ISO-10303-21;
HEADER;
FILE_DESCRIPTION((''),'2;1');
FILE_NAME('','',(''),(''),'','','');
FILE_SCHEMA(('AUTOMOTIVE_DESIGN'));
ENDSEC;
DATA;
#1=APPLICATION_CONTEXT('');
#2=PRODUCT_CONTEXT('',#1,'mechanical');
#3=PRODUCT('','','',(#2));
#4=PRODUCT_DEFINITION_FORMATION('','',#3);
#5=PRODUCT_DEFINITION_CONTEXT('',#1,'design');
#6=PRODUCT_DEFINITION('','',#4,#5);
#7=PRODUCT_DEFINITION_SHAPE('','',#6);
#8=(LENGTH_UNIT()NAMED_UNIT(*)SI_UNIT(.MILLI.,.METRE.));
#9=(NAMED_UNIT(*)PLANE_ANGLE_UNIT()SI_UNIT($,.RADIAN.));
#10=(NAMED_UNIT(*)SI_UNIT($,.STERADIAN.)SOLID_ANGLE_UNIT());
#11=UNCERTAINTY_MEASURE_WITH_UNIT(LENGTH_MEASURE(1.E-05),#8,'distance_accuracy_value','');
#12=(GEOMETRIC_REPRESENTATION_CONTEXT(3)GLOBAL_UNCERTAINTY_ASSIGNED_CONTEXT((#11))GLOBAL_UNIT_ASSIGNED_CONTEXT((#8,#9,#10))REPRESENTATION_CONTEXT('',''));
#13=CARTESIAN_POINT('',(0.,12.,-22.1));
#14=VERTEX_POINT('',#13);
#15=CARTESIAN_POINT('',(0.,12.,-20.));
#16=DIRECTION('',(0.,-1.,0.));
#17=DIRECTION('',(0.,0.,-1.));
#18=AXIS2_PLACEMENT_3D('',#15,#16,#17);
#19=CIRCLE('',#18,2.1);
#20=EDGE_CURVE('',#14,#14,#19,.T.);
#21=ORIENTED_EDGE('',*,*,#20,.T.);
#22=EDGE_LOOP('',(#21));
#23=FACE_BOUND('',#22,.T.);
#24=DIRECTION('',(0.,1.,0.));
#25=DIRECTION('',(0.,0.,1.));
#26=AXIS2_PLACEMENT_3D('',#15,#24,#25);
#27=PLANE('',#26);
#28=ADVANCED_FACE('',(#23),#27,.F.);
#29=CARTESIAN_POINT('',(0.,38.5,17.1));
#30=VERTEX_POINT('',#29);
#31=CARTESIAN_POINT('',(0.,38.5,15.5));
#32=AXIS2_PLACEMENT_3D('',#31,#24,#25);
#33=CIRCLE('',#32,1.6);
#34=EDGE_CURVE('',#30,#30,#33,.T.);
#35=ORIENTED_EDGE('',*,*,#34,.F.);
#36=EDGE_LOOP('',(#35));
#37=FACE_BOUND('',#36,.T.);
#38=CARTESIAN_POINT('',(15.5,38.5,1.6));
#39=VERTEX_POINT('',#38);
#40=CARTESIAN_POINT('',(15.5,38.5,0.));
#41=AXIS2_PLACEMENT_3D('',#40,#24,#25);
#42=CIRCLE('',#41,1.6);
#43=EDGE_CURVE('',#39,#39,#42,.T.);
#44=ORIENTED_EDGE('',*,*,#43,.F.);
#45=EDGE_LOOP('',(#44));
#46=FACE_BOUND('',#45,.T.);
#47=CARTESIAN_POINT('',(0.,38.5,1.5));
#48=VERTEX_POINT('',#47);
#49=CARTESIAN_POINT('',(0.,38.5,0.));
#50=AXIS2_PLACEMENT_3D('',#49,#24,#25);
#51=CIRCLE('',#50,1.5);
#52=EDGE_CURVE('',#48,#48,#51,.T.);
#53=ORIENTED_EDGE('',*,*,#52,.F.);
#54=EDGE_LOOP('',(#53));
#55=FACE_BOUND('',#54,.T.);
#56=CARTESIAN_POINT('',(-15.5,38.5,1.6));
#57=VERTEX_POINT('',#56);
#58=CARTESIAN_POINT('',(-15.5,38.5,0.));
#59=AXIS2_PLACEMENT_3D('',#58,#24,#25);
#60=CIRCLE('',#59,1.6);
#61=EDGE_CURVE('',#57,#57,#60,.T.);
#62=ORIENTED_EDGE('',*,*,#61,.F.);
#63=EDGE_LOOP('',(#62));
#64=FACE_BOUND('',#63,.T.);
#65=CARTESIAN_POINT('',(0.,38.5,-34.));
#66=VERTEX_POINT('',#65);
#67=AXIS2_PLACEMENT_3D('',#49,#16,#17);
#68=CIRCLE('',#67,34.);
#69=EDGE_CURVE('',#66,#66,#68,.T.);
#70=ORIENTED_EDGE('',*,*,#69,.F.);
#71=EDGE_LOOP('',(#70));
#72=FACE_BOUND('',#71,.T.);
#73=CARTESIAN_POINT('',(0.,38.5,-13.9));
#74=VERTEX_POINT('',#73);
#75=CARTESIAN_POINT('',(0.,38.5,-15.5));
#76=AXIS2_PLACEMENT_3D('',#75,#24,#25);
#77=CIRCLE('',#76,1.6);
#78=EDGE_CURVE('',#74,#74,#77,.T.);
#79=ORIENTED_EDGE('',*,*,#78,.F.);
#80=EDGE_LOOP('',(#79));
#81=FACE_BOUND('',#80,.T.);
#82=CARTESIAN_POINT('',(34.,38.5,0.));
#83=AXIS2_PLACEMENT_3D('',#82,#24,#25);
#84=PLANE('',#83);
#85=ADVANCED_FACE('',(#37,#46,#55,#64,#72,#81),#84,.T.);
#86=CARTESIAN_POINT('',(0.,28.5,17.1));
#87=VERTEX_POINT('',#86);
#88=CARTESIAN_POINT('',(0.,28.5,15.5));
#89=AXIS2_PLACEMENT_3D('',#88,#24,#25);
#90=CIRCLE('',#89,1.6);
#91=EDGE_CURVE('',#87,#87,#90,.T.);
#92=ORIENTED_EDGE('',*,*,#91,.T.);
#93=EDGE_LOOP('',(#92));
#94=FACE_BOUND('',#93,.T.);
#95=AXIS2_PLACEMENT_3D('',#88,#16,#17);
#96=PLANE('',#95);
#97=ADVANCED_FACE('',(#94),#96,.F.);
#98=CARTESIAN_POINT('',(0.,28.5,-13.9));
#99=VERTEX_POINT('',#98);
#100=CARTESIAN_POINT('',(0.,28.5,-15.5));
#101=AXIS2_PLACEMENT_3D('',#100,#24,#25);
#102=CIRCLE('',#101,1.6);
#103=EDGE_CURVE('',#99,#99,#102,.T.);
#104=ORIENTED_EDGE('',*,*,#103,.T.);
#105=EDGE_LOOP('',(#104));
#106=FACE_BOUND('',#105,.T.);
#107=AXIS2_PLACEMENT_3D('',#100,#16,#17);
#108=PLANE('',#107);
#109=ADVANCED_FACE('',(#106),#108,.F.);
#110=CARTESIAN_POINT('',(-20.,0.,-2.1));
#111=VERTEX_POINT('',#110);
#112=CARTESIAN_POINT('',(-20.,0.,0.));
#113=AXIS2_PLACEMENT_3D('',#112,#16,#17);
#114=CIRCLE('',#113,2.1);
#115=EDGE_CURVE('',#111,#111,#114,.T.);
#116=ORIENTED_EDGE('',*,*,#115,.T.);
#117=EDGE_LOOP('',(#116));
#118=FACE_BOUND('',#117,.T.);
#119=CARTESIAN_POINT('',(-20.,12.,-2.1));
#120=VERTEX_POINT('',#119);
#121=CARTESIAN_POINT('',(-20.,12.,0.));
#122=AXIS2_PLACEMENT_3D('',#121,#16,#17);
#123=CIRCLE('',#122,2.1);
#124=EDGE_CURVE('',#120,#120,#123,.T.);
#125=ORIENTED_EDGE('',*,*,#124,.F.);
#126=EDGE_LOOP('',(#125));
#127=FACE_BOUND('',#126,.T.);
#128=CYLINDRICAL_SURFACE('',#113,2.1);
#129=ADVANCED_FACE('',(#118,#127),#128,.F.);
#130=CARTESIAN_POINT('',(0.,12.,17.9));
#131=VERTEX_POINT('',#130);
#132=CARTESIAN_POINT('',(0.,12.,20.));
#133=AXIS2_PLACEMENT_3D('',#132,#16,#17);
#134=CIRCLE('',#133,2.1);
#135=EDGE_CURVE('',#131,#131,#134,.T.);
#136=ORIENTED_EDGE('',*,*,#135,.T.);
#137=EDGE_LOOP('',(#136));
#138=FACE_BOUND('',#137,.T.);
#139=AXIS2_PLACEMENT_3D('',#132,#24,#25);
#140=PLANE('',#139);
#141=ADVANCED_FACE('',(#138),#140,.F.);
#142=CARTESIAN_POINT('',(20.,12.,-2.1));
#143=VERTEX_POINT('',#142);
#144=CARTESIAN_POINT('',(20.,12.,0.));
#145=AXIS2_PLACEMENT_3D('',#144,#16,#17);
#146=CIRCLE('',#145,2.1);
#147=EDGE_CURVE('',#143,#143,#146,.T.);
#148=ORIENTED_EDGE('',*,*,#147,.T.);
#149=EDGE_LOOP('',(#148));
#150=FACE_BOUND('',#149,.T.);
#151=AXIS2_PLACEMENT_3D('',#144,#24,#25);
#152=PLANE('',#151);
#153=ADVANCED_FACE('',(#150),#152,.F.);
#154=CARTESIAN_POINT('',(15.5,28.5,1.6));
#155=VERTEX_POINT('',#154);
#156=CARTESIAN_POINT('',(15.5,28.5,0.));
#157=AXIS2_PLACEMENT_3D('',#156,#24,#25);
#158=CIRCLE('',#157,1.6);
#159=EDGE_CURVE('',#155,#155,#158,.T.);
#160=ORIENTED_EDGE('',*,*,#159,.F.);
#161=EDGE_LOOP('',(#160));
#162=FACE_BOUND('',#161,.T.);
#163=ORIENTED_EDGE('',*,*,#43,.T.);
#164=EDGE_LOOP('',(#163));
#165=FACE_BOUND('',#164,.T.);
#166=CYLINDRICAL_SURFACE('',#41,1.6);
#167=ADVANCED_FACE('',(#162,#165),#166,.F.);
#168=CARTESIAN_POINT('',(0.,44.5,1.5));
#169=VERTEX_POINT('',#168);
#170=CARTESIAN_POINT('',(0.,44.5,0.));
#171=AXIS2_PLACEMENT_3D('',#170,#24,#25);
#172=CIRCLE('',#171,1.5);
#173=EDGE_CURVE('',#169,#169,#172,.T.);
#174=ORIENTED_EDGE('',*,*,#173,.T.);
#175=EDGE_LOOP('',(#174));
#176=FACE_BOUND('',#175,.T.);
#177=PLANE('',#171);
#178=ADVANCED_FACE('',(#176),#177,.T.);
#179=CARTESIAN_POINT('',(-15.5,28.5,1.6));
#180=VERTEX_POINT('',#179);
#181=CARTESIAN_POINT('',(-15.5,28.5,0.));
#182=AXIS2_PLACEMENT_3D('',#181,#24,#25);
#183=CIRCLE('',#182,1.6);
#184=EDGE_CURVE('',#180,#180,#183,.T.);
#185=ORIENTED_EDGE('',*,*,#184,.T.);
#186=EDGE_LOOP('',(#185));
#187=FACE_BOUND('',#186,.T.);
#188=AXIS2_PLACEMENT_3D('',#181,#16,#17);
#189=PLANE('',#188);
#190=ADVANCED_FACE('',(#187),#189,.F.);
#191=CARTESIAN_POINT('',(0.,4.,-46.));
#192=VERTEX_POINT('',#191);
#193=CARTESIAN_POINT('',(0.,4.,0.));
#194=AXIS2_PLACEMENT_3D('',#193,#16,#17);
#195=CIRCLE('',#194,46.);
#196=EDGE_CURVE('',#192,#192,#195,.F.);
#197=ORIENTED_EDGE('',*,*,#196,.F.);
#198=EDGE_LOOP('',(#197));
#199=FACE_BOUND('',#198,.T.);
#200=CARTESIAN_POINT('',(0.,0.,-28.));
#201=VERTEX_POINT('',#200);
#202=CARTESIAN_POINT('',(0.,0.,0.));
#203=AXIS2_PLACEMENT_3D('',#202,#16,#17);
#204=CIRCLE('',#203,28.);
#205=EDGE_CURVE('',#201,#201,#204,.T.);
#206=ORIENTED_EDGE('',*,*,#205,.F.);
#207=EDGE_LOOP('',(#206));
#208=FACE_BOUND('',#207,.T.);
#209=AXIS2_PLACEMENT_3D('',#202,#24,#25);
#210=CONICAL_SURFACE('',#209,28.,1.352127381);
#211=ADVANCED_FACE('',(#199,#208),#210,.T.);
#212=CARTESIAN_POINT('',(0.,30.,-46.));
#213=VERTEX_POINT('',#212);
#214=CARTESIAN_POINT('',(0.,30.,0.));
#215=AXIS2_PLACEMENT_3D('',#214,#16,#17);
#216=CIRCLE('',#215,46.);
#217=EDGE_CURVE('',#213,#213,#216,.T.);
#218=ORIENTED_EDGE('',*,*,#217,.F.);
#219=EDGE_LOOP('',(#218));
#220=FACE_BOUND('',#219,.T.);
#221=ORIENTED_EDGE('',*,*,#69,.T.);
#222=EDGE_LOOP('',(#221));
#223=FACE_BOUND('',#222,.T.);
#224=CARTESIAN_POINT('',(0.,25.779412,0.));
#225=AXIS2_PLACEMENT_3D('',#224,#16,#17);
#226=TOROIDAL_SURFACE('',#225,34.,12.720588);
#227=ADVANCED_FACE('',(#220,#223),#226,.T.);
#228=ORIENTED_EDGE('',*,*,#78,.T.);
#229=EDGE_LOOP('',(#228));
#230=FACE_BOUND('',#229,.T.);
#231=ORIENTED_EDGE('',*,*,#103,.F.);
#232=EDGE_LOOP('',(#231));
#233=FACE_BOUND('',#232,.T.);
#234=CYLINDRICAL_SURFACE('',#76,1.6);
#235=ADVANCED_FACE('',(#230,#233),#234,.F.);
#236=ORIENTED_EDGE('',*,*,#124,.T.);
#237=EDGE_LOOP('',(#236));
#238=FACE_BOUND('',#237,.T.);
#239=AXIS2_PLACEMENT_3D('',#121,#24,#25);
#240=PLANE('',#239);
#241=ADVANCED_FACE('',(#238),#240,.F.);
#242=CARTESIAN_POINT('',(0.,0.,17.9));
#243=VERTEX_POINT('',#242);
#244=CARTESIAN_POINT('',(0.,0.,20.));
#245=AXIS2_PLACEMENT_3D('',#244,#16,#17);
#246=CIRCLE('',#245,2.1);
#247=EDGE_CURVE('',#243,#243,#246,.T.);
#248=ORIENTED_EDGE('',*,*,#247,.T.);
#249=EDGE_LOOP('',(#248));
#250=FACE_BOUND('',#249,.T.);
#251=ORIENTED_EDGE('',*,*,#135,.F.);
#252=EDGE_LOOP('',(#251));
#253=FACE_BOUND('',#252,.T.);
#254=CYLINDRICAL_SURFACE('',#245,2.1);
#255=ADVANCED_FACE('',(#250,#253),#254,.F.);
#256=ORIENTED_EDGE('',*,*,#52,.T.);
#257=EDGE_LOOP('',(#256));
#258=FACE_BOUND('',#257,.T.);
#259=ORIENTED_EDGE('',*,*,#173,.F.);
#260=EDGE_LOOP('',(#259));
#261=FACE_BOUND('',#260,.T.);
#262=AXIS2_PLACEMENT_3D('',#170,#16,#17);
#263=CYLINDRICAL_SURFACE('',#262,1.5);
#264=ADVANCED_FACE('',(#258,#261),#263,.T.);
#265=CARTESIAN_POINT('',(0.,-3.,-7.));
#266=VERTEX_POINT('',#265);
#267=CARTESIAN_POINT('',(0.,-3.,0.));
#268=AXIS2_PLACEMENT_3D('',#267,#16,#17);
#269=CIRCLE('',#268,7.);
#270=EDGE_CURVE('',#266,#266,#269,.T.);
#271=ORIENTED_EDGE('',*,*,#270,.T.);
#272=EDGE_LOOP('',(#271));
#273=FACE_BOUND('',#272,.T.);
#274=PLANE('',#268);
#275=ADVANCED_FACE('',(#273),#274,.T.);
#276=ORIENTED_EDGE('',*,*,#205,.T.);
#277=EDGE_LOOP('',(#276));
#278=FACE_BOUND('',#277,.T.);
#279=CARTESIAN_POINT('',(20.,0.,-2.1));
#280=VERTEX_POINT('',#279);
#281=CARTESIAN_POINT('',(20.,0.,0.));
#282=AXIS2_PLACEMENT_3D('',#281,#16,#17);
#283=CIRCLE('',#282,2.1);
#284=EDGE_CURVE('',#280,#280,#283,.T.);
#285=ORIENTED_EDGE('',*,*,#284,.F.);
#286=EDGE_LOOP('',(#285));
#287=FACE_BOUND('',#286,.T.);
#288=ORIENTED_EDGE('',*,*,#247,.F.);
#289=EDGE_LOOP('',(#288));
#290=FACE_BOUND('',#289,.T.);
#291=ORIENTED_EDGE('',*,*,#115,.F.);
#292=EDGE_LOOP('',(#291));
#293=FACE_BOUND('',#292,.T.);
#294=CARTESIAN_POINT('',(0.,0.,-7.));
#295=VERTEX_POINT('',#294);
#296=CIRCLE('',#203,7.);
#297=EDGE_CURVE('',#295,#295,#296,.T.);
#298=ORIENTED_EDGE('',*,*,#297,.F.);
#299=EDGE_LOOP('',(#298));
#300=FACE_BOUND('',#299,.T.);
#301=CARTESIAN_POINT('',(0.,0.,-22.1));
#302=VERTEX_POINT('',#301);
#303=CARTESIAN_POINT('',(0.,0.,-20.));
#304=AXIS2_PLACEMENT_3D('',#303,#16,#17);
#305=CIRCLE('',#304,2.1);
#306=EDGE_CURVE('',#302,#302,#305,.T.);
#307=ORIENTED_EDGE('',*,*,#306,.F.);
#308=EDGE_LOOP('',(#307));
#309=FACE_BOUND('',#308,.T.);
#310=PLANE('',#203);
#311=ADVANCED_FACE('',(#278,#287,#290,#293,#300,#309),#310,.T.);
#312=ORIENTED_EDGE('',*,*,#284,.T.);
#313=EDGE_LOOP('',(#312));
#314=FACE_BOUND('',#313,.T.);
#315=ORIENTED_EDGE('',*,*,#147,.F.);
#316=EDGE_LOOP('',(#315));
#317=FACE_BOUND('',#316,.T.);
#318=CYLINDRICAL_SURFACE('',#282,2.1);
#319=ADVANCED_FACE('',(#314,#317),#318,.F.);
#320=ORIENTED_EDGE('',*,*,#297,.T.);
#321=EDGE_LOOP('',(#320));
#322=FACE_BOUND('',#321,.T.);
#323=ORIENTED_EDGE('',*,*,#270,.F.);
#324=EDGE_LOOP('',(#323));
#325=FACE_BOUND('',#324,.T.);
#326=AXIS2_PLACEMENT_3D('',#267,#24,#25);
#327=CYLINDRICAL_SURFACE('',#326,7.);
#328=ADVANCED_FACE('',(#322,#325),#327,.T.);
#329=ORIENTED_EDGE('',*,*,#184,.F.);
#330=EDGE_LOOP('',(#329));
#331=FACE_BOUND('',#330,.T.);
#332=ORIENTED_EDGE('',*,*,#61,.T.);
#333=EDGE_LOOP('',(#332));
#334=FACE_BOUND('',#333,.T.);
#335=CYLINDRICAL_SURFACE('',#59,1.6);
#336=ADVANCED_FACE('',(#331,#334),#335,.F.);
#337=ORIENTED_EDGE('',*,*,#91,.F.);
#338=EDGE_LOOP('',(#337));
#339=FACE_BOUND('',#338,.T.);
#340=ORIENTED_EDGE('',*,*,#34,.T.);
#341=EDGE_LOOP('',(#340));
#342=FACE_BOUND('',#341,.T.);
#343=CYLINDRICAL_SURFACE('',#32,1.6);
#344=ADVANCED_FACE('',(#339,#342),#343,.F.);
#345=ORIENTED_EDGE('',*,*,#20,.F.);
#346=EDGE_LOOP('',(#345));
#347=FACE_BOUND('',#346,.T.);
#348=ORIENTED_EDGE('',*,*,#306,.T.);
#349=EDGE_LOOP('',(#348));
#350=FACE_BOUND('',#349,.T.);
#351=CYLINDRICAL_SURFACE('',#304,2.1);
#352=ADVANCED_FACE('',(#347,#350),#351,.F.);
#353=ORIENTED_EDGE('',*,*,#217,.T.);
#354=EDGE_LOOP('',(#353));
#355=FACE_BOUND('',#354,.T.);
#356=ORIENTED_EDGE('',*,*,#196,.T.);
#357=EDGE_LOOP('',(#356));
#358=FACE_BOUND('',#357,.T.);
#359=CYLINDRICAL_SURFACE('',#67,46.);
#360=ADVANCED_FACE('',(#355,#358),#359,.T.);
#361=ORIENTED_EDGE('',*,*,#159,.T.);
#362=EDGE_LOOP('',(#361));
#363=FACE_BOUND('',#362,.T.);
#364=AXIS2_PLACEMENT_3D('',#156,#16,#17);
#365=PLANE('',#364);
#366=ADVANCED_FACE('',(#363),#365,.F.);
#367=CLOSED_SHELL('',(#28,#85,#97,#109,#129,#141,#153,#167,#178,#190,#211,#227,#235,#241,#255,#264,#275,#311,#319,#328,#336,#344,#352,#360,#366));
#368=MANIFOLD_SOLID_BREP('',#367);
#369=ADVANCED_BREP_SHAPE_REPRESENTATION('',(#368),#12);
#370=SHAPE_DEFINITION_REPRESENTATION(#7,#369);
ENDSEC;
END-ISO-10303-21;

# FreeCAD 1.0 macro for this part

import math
import FreeCAD as App
import Part
import Sketcher
Q = App.Units.Quantity


def edges_at(feature, points):
    """Names of the edges that pass closest to the given points."""
    edges = feature.Shape.Edges
    near = lambda p: min(range(len(edges)), key=lambda i: edges[i].distToShape(Part.Vertex(*p))[0])
    return sorted({f"Edge{near(p) + 1}" for p in points})

doc = App.newDocument("Part")
body = doc.addObject("PartDesign::Body", "Body")

sketch1 = doc.addObject("Sketcher::SketchObject", "Sketch")
body.addObject(sketch1)
sketch1.AttachmentSupport = (doc.XY_Plane, [""])
sketch1.MapMode = "FlatFace"
sketch1.addGeometry(Part.LineSegment(App.Vector(34, 38.5, 0), App.Vector(0, 38.5, 0)), False)
sketch1.addGeometry(Part.LineSegment(App.Vector(0, 38.5, 0), App.Vector(0, 0, 0)), False)
sketch1.addGeometry(Part.LineSegment(App.Vector(0, 0, 0), App.Vector(46, 0, 0)), False)
sketch1.addGeometry(Part.LineSegment(App.Vector(46, 0, 0), App.Vector(46, 30, 0)), False)
sketch1.addGeometry(Part.ArcOfCircle(Part.Circle(App.Vector(34, 25.779412, 0), App.Vector(0, 0, 1), 12.720588), math.radians(19.377573), math.radians(90)), False)
sketch1.addConstraint(Sketcher.Constraint("Coincident", 0, 2, 1, 1))
sketch1.addConstraint(Sketcher.Constraint("Coincident", 1, 2, 2, 1))
sketch1.addConstraint(Sketcher.Constraint("Coincident", 2, 2, 3, 1))
sketch1.addConstraint(Sketcher.Constraint("Coincident", 3, 2, 4, 1))
sketch1.addConstraint(Sketcher.Constraint("Tangent", 4, 2, 0, 1))
sketch1.addConstraint(Sketcher.Constraint("Horizontal", 0))
sketch1.addConstraint(Sketcher.Constraint("Vertical", 1))
sketch1.addConstraint(Sketcher.Constraint("Horizontal", 2))
sketch1.addConstraint(Sketcher.Constraint("Vertical", 3))
sketch1.addConstraint(Sketcher.Constraint("Coincident", 1, 2, -1, 1))
sketch1.addConstraint(Sketcher.Constraint("DistanceX", 0, 2, 0, 1, Q("34 mm")))
sketch1.addConstraint(Sketcher.Constraint("DistanceX", 2, 1, 2, 2, Q("46 mm")))
sketch1.addConstraint(Sketcher.Constraint("DistanceY", 3, 1, 3, 2, Q("30 mm")))
sketch1.addConstraint(Sketcher.Constraint("DistanceY", 1, 2, 1, 1, Q("38.5 mm")))
revolution = doc.addObject("PartDesign::Revolution", "Revolution")
body.addObject(revolution)
revolution.Profile = sketch1
revolution.ReferenceAxis = (sketch1, ["V_Axis"])
revolution.Angle = 360

sketch2 = doc.addObject("Sketcher::SketchObject", "Sketch001")
body.addObject(sketch2)
sketch2.AttachmentSupport = (doc.XZ_Plane, [""])
sketch2.MapMode = "FlatFace"
sketch2.addGeometry(Part.Circle(App.Vector(0, 0, 0), App.Vector(0, 0, 1), 7), False)
sketch2.addConstraint(Sketcher.Constraint("Coincident", 0, 3, -1, 1))
sketch2.addConstraint(Sketcher.Constraint("Diameter", 0, Q("14 mm")))
pad1 = doc.addObject("PartDesign::Pad", "Pad")
body.addObject(pad1)
pad1.Profile = sketch2
pad1.Length = 3

sketch3 = doc.addObject("Sketcher::SketchObject", "Sketch002")
body.addObject(sketch3)
sketch3.AttachmentSupport = (doc.XZ_Plane, [""])
sketch3.MapMode = "FlatFace"
sketch3.AttachmentOffset = App.Placement(App.Vector(0, 0, -38.5), App.Rotation())
sketch3.addGeometry(Part.Circle(App.Vector(0, 0, 0), App.Vector(0, 0, 1), 1.5), False)
sketch3.addConstraint(Sketcher.Constraint("Coincident", 0, 3, -1, 1))
sketch3.addConstraint(Sketcher.Constraint("Diameter", 0, Q("3 mm")))
pad2 = doc.addObject("PartDesign::Pad", "Pad001")
body.addObject(pad2)
pad2.Profile = sketch3
pad2.Length = 6
pad2.Reversed = True

sketch4 = doc.addObject("Sketcher::SketchObject", "Sketch003")
body.addObject(sketch4)
sketch4.AttachmentSupport = (doc.XZ_Plane, [""])
sketch4.MapMode = "FlatFace"
sketch4.AttachmentOffset = App.Placement(App.Vector(0, 0, -38.5), App.Rotation())
sketch4.addGeometry(Part.Circle(App.Vector(0, -15.5, 0), App.Vector(0, 0, 1), 1.6), False)
sketch4.addGeometry(Part.Circle(App.Vector(-15.5, 0, 0), App.Vector(0, 0, 1), 1.6), False)
sketch4.addGeometry(Part.Circle(App.Vector(15.5, 0, 0), App.Vector(0, 0, 1), 1.6), False)
sketch4.addGeometry(Part.Circle(App.Vector(0, 15.5, 0), App.Vector(0, 0, 1), 1.6), False)
sketch4.addConstraint(Sketcher.Constraint("Equal", 0, 1))
sketch4.addConstraint(Sketcher.Constraint("Equal", 1, 2))
sketch4.addConstraint(Sketcher.Constraint("Equal", 2, 3))
sketch4.addConstraint(Sketcher.Constraint("Symmetric", 1, 3, 2, 3, -1, 1))
sketch4.addConstraint(Sketcher.Constraint("Symmetric", 0, 3, 3, 3, -1, 1))
sketch4.addConstraint(Sketcher.Constraint("PointOnObject", 0, 3, -2))
sketch4.addConstraint(Sketcher.Constraint("PointOnObject", 1, 3, -1))
sketch4.addConstraint(Sketcher.Constraint("Diameter", 0, Q("3.2 mm")))
sketch4.addConstraint(Sketcher.Constraint("DistanceX", 1, 3, 2, 3, Q("31 mm")))
sketch4.addConstraint(Sketcher.Constraint("DistanceY", 0, 3, 3, 3, Q("31 mm")))
doc.recompute()
hole = doc.addObject("PartDesign::Hole", "Hole")
body.addObject(hole)
hole.Profile = sketch4
hole.ThreadType = "None"
hole.Diameter = 3.2
hole.DepthType = "Dimension"
hole.Depth = 10
hole.DrillPoint = "Flat"
hole.Reversed = True

sketch5 = doc.addObject("Sketcher::SketchObject", "Sketch004")
body.addObject(sketch5)
sketch5.AttachmentSupport = (doc.XZ_Plane, [""])
sketch5.MapMode = "FlatFace"
sketch5.addGeometry(Part.Circle(App.Vector(0, 20, 0), App.Vector(0, 0, 1), 2.1), False)
sketch5.addGeometry(Part.Circle(App.Vector(-20, 0, 0), App.Vector(0, 0, 1), 2.1), False)
sketch5.addGeometry(Part.Circle(App.Vector(20, 0, 0), App.Vector(0, 0, 1), 2.1), False)
sketch5.addGeometry(Part.Circle(App.Vector(0, -20, 0), App.Vector(0, 0, 1), 2.1), False)
sketch5.addConstraint(Sketcher.Constraint("Equal", 0, 1))
sketch5.addConstraint(Sketcher.Constraint("Equal", 1, 2))
sketch5.addConstraint(Sketcher.Constraint("Equal", 2, 3))
sketch5.addConstraint(Sketcher.Constraint("Symmetric", 1, 3, 2, 3, -1, 1))
sketch5.addConstraint(Sketcher.Constraint("Symmetric", 0, 3, 3, 3, -1, 1))
sketch5.addConstraint(Sketcher.Constraint("PointOnObject", 0, 3, -2))
sketch5.addConstraint(Sketcher.Constraint("PointOnObject", 1, 3, -1))
sketch5.addConstraint(Sketcher.Constraint("Diameter", 0, Q("4.2 mm")))
sketch5.addConstraint(Sketcher.Constraint("DistanceY", -1, 1, 0, 3, Q("20 mm")))
sketch5.addConstraint(Sketcher.Constraint("DistanceX", 1, 3, -1, 1, Q("20 mm")))
doc.recompute()
hole2 = doc.addObject("PartDesign::Hole", "Hole001")
body.addObject(hole2)
hole2.Profile = sketch5
hole2.ThreadType = "None"
hole2.Diameter = 4.2
hole2.DepthType = "Dimension"
hole2.Depth = 12
hole2.DrillPoint = "Flat"
doc.recompute()

chamfer = doc.addObject("PartDesign::Chamfer", "Chamfer")
body.addObject(chamfer)
chamfer.Base = (hole2, edges_at(hole2, [(0, 0, 46)]))
chamfer.ChamferType = "Two distances"
chamfer.Size = 18
chamfer.Size2 = 4
chamfer.FlipDirection = True

doc.recompute()
